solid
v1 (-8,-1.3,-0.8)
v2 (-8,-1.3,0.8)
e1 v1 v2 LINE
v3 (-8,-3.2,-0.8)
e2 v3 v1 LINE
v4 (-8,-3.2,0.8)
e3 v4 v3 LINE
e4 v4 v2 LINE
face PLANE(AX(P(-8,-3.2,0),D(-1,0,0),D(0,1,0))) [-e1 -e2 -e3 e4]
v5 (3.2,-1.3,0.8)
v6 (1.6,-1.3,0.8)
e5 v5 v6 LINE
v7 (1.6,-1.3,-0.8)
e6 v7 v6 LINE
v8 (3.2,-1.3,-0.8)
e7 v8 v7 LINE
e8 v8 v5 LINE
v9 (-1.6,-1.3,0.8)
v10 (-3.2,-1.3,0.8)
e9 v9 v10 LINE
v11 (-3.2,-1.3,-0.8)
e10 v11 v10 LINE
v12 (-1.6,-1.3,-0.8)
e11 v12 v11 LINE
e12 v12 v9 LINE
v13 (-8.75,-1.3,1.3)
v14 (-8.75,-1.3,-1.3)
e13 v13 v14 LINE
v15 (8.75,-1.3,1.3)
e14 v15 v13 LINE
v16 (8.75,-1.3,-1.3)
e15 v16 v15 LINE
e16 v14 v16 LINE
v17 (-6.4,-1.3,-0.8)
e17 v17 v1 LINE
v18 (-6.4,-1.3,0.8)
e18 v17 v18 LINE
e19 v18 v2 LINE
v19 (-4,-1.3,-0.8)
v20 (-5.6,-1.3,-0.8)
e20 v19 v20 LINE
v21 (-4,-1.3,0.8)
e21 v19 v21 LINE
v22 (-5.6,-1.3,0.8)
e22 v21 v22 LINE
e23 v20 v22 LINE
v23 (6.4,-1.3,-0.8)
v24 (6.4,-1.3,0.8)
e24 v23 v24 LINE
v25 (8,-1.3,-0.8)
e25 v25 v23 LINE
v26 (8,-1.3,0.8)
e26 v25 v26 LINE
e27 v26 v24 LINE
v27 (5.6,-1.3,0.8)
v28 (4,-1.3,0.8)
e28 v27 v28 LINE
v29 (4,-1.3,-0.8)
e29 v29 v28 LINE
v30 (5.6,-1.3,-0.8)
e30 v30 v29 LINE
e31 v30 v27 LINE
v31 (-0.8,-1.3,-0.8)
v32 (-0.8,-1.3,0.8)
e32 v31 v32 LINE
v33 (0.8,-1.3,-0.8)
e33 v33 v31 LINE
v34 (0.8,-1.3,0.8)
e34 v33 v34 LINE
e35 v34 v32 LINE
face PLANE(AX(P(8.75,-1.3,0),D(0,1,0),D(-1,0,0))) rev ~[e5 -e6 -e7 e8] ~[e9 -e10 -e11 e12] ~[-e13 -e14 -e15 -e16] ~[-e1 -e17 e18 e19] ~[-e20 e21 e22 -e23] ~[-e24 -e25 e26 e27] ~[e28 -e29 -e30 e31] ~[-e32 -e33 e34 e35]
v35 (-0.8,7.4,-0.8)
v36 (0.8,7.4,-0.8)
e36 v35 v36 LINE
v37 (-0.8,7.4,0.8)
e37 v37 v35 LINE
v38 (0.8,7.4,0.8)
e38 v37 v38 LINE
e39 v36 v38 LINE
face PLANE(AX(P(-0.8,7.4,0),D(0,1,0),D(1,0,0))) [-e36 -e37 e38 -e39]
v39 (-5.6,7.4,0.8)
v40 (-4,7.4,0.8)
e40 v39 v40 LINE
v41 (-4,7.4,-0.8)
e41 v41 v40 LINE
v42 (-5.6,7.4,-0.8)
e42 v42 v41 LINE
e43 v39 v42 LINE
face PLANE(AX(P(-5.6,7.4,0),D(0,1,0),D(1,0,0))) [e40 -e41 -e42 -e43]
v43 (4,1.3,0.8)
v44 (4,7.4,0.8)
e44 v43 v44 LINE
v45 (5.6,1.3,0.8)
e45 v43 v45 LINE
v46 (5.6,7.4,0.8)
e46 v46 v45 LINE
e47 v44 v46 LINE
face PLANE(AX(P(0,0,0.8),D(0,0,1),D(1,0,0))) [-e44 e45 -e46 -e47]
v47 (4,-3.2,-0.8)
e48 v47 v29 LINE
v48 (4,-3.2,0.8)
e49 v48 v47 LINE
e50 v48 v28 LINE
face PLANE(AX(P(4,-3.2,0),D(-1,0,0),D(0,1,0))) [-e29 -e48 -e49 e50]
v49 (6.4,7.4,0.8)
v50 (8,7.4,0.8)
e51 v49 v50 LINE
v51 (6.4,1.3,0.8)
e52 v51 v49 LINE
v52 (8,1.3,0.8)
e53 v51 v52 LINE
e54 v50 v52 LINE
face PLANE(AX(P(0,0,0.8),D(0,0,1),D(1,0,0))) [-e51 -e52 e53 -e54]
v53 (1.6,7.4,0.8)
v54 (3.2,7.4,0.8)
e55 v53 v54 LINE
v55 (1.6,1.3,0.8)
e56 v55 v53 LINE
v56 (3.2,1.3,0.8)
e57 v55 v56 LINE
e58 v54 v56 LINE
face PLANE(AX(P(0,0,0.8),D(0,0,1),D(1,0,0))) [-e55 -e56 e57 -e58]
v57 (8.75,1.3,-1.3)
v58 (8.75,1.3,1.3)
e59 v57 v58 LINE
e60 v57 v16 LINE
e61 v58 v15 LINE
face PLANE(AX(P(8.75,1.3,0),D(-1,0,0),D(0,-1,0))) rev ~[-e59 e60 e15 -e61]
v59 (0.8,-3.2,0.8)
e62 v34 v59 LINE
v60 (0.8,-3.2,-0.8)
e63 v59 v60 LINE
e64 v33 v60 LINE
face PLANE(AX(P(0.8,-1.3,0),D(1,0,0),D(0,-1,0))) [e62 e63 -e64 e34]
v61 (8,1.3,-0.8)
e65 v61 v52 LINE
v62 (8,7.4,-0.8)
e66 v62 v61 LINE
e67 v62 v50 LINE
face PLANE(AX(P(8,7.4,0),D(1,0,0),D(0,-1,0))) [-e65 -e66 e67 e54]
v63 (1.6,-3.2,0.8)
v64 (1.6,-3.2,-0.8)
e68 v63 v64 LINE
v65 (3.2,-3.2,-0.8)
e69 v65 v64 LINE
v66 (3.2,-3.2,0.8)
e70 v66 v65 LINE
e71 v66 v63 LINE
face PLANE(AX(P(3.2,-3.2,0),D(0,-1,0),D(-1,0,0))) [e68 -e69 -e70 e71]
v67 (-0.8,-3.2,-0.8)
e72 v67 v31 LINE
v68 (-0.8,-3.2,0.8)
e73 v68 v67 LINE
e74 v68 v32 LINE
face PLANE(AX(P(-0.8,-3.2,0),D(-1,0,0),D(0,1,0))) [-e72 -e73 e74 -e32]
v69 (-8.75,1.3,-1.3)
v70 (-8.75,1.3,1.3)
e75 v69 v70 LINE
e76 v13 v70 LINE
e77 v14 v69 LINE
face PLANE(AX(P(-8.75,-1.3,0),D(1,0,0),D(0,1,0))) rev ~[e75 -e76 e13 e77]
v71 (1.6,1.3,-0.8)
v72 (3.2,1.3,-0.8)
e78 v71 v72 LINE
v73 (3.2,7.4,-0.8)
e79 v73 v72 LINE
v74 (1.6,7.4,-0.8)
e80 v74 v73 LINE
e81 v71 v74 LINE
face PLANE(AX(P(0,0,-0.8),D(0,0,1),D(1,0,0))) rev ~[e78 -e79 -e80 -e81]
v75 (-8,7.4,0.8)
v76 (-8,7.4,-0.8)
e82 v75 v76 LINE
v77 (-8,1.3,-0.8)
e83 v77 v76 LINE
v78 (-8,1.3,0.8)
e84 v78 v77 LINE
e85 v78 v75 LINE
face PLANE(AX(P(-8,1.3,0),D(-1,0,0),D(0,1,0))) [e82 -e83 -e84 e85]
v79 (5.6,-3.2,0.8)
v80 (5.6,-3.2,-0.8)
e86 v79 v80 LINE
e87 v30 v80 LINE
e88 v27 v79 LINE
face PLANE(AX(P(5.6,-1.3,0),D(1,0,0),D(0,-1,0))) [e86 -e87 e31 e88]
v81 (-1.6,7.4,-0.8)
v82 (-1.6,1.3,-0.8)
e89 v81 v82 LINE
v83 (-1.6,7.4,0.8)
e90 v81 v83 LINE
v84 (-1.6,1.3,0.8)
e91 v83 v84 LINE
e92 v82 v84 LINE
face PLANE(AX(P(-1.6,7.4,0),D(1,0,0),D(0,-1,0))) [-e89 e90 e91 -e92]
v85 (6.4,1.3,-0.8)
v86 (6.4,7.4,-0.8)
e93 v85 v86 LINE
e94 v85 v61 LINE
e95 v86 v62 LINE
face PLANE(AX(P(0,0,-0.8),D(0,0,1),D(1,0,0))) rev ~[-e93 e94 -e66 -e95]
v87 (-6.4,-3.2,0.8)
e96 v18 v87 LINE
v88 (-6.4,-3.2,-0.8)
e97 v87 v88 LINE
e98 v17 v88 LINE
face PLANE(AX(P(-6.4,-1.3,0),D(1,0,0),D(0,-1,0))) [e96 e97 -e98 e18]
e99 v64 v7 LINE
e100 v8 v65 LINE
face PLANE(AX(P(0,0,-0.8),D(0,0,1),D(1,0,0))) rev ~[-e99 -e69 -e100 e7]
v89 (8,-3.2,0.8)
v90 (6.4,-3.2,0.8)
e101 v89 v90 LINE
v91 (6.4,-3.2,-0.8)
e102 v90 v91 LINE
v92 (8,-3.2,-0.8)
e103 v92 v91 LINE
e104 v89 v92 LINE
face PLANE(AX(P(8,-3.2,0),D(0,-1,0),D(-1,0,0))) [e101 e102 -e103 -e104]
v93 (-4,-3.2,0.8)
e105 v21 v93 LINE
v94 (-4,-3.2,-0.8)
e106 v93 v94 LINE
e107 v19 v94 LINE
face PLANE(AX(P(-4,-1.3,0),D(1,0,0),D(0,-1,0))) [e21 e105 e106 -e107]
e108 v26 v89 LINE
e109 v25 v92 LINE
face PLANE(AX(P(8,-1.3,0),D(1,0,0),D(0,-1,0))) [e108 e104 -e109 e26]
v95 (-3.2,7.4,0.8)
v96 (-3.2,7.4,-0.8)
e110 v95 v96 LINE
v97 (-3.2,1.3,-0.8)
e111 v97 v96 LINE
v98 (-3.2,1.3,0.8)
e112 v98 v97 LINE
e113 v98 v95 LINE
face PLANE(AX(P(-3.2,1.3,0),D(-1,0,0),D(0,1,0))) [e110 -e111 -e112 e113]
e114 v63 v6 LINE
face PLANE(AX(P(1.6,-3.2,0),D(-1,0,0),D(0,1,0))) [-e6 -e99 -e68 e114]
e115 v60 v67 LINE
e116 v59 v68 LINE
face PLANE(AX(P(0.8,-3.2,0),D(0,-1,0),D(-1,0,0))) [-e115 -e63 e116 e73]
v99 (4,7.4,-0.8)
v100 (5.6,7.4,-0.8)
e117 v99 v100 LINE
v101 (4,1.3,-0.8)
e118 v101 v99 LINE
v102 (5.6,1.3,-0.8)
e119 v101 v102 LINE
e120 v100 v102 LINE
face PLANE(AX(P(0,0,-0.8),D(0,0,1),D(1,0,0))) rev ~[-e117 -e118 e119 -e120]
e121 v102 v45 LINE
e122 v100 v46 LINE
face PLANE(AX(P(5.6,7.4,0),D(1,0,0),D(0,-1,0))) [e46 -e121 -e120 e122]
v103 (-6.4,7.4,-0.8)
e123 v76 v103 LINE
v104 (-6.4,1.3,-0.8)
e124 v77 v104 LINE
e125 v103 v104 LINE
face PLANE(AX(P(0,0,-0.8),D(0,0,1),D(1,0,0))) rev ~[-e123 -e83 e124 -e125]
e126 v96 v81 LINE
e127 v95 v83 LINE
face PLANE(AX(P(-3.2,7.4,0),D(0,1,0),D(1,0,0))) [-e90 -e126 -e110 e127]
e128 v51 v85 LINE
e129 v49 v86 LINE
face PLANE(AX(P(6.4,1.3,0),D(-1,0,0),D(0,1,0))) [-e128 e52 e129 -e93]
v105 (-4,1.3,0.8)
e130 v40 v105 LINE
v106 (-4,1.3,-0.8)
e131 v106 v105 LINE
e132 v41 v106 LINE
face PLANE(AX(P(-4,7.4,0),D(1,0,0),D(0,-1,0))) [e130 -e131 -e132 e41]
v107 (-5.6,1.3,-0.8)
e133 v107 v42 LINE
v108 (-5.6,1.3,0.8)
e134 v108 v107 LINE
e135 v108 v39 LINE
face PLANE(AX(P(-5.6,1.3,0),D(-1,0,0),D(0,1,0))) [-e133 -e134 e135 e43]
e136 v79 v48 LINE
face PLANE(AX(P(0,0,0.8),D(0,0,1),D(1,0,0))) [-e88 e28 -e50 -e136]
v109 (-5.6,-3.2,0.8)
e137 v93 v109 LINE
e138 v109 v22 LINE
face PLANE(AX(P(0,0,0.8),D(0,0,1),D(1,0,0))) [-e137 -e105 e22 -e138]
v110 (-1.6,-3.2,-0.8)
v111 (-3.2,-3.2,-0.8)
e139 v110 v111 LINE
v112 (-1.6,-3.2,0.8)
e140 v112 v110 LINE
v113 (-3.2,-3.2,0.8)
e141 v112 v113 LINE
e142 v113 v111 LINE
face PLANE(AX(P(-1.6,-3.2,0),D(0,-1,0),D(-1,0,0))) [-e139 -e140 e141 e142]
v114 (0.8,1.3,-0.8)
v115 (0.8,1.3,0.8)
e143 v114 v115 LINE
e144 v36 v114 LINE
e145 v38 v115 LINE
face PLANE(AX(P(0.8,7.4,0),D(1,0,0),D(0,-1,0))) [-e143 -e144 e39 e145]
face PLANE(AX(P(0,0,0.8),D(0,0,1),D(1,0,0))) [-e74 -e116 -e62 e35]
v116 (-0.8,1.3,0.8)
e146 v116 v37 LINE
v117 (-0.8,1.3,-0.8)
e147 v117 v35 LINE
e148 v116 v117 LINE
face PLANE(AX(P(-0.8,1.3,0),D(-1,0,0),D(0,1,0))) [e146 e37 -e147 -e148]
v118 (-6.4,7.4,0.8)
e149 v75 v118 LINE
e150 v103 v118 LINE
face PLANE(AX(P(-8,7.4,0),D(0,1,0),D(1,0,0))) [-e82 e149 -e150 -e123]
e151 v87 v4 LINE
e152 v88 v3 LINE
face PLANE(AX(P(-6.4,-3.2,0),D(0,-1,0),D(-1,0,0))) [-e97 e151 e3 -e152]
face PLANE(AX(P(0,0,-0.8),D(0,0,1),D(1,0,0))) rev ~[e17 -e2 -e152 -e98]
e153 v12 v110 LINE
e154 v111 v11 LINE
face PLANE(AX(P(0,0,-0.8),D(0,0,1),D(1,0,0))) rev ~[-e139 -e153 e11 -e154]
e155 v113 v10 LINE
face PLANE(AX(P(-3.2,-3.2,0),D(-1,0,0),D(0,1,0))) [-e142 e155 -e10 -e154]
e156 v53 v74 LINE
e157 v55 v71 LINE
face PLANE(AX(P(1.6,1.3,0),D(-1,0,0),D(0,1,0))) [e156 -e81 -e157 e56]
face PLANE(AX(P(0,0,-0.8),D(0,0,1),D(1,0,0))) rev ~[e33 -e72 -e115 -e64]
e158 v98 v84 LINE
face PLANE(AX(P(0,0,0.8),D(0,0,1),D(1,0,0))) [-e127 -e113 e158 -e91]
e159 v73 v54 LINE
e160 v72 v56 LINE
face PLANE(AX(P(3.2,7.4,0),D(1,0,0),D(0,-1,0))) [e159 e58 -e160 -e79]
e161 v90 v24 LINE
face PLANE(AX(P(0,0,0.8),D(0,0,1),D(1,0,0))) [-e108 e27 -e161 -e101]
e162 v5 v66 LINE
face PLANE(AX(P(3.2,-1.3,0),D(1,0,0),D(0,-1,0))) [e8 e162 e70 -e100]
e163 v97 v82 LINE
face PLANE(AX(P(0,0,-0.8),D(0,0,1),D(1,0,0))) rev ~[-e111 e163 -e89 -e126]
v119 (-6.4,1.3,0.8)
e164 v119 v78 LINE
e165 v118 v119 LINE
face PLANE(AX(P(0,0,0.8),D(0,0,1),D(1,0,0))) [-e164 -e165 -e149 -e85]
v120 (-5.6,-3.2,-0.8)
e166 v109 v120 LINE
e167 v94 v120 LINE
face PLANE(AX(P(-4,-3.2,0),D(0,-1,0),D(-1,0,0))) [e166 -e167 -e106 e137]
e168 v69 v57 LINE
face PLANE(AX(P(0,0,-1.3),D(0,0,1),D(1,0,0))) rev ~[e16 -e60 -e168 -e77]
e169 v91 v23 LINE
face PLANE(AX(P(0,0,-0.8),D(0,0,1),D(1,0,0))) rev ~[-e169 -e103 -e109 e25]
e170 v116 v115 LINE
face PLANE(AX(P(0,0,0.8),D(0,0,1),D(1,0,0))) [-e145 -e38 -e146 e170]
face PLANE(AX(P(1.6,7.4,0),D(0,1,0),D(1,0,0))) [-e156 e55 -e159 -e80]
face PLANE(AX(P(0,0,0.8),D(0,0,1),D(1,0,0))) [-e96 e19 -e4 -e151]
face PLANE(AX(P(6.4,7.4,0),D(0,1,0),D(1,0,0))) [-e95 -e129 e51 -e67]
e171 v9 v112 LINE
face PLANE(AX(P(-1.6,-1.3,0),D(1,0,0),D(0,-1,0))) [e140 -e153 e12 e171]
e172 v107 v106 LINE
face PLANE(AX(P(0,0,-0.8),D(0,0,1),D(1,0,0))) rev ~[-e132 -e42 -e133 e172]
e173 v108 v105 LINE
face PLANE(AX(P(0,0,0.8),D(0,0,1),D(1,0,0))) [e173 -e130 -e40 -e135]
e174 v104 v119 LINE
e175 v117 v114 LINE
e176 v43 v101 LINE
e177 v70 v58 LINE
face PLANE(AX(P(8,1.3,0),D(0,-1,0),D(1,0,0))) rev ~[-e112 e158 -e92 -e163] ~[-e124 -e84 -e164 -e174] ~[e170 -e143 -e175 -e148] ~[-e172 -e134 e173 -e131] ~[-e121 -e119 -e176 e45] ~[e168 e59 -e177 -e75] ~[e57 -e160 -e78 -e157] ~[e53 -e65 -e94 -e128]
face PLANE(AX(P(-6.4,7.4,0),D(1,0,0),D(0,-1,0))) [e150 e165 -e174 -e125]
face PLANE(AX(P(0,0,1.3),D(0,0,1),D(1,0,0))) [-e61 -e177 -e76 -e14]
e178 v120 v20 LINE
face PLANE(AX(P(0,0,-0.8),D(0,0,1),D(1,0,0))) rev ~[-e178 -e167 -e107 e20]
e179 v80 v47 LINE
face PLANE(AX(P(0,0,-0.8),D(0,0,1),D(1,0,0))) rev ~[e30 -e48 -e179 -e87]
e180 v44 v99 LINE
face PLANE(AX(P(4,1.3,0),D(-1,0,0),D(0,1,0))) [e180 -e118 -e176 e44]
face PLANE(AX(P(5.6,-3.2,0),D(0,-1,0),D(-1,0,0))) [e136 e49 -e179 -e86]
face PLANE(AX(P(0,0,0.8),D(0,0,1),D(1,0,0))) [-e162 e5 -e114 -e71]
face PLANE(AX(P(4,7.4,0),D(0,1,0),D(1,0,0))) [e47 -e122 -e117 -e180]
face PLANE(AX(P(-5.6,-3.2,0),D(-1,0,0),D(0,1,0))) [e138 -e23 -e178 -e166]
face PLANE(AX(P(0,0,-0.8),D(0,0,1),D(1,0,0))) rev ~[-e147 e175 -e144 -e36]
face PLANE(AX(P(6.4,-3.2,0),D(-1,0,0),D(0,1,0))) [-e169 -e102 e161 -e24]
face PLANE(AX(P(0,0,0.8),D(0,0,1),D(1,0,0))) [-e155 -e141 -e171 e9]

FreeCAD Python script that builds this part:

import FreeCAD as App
import Part
import Sketcher
from FreeCAD import Vector


def add_polygon(sketch, points):
    """Adds a closed chain of lines whose ends are joined by coincident constraints."""
    first, n = sketch.GeometryCount, len(points)
    for a, b in zip(points, points[1:] + points[:1]):
        sketch.addGeometry(Part.LineSegment(App.Vector(*a, 0), App.Vector(*b, 0)), False)
    for i in range(n):
        sketch.addConstraint(Sketcher.Constraint("Coincident", first + i, 2, first + (i + 1) % n, 1))

doc = App.newDocument("Part")
params = doc.addObject("Spreadsheet::Sheet", "Params")
for row, (alias, value) in enumerate([
    ("sketch1_width", "17.5 mm"),
    ("sketch1_height", "2.6 mm"),
    ("pad1_length", "2.6 mm"),
    ("sketch2_width", "1.6 mm"),
    ("pad2_length", "1.6 mm"),
], start=1):
    params.set(f"A{row}", alias)
    params.set(f"B{row}", "=" + value)
    params.setAlias(f"B{row}", alias)

body = doc.addObject("PartDesign::Body", "Body")

sketch1 = doc.addObject("Sketcher::SketchObject", "Sketch")
body.addObject(sketch1)
sketch1.AttachmentSupport = (doc.XY_Plane, [""])
sketch1.MapMode = "FlatFace"
add_polygon(sketch1, [(-8.8, -1.3), (8.8, -1.3), (8.8, 1.3), (-8.8, 1.3)])
sketch1.addConstraint([
    Sketcher.Constraint("Horizontal", 0),
    Sketcher.Constraint("Vertical", 1),
    Sketcher.Constraint("Horizontal", 2),
    Sketcher.Constraint("Vertical", 3),
    Sketcher.Constraint("Symmetric", 0, 2, 2, 2, -1, 1),
    Sketcher.Constraint("DistanceX", 0, 1, 0, 2, 17.5),
    Sketcher.Constraint("DistanceY", 1, 1, 1, 2, 2.6),
])
sketch1.setExpression("Constraints[9]", "Params.sketch1_width")
sketch1.setExpression("Constraints[10]", "Params.sketch1_height")
pad1 = doc.addObject("PartDesign::Pad", "Pad")
body.addObject(pad1)
pad1.Profile = sketch1
pad1.setExpression("Length", "Params.pad1_length")
pad1.Midplane = True

sketch2 = doc.addObject("Sketcher::SketchObject", "Sketch001")
body.addObject(sketch2)
sketch2.AttachmentSupport = (doc.XY_Plane, [""])
sketch2.MapMode = "FlatFace"
add_polygon(sketch2, [(8, -3.2), (8, -1.3), (6.4, -1.3), (6.4, -3.2)])
add_polygon(sketch2, [(6.4, 1.3), (8, 1.3), (8, 7.4), (6.4, 7.4)])
add_polygon(sketch2, [(5.6, -3.2), (5.6, -1.3), (4, -1.3), (4, -3.2)])
add_polygon(sketch2, [(4, 1.3), (5.6, 1.3), (5.6, 7.4), (4, 7.4)])
add_polygon(sketch2, [(3.2, -3.2), (3.2, -1.3), (1.6, -1.3), (1.6, -3.2)])
add_polygon(sketch2, [(1.6, 1.3), (3.2, 1.3), (3.2, 7.4), (1.6, 7.4)])
add_polygon(sketch2, [(0.8, -3.2), (0.8, -1.3), (-0.8, -1.3), (-0.8, -3.2)])
add_polygon(sketch2, [(-0.8, 1.3), (0.8, 1.3), (0.8, 7.4), (-0.8, 7.4)])
add_polygon(sketch2, [(-1.6, -3.2), (-1.6, -1.3), (-3.2, -1.3), (-3.2, -3.2)])
add_polygon(sketch2, [(-3.2, 1.3), (-1.6, 1.3), (-1.6, 7.4), (-3.2, 7.4)])
add_polygon(sketch2, [(-4, -3.2), (-4, -1.3), (-5.6, -1.3), (-5.6, -3.2)])
add_polygon(sketch2, [(-5.6, 1.3), (-4, 1.3), (-4, 7.4), (-5.6, 7.4)])
add_polygon(sketch2, [(-6.4, -3.2), (-6.4, -1.3), (-8, -1.3), (-8, -3.2)])
add_polygon(sketch2, [(-8, 1.3), (-6.4, 1.3), (-6.4, 7.4), (-8, 7.4)])
sketch2.addConstraint([
    Sketcher.Constraint("Vertical", 0),
    Sketcher.Constraint("Horizontal", 1),
    Sketcher.Constraint("Vertical", 2),
    Sketcher.Constraint("Horizontal", 3),
    Sketcher.Constraint("Horizontal", 4),
    Sketcher.Constraint("Vertical", 5),
    Sketcher.Constraint("Horizontal", 6),
    Sketcher.Constraint("Vertical", 7),
    Sketcher.Constraint("Vertical", 8),
    Sketcher.Constraint("Horizontal", 9),
    Sketcher.Constraint("Vertical", 10),
    Sketcher.Constraint("Horizontal", 11),
    Sketcher.Constraint("Horizontal", 12),
    Sketcher.Constraint("Vertical", 13),
    Sketcher.Constraint("Horizontal", 14),
    Sketcher.Constraint("Vertical", 15),
    Sketcher.Constraint("Vertical", 16),
    Sketcher.Constraint("Horizontal", 17),
    Sketcher.Constraint("Vertical", 18),
    Sketcher.Constraint("Horizontal", 19),
    Sketcher.Constraint("Horizontal", 20),
    Sketcher.Constraint("Vertical", 21),
    Sketcher.Constraint("Horizontal", 22),
    Sketcher.Constraint("Vertical", 23),
    Sketcher.Constraint("Vertical", 24),
    Sketcher.Constraint("Horizontal", 25),
    Sketcher.Constraint("Vertical", 26),
    Sketcher.Constraint("Horizontal", 27),
    Sketcher.Constraint("Horizontal", 28),
    Sketcher.Constraint("Vertical", 29),
    Sketcher.Constraint("Horizontal", 30),
    Sketcher.Constraint("Vertical", 31),
    Sketcher.Constraint("Vertical", 32),
    Sketcher.Constraint("Horizontal", 33),
    Sketcher.Constraint("Vertical", 34),
    Sketcher.Constraint("Horizontal", 35),
    Sketcher.Constraint("Horizontal", 36),
    Sketcher.Constraint("Vertical", 37),
    Sketcher.Constraint("Horizontal", 38),
    Sketcher.Constraint("Vertical", 39),
    Sketcher.Constraint("Vertical", 40),
    Sketcher.Constraint("Horizontal", 41),
    Sketcher.Constraint("Vertical", 42),
    Sketcher.Constraint("Horizontal", 43),
    Sketcher.Constraint("Horizontal", 44),
    Sketcher.Constraint("Vertical", 45),
    Sketcher.Constraint("Horizontal", 46),
    Sketcher.Constraint("Vertical", 47),
    Sketcher.Constraint("Vertical", 48),
    Sketcher.Constraint("Horizontal", 49),
    Sketcher.Constraint("Vertical", 50),
    Sketcher.Constraint("Horizontal", 51),
    Sketcher.Constraint("Horizontal", 52),
    Sketcher.Constraint("Vertical", 53),
    Sketcher.Constraint("Horizontal", 54),
    Sketcher.Constraint("Vertical", 55),
    Sketcher.Constraint("Symmetric", 25, 2, 28, 2, -1, 1),
    Sketcher.Constraint("Symmetric", 23, 2, 32, 2, -1, 1),
    Sketcher.Constraint("Symmetric", 17, 2, 36, 2, -1, 1),
    Sketcher.Constraint("Symmetric", 15, 2, 40, 2, -1, 1),
    Sketcher.Constraint("Symmetric", 9, 2, 44, 2, -1, 1),
    Sketcher.Constraint("Symmetric", 7, 2, 48, 2, -1, 1),
    Sketcher.Constraint("Symmetric", 1, 2, 52, 2, -1, 1),
    Sketcher.Constraint("Symmetric", 17, 2, 32, 2, -2),
    Sketcher.Constraint("Symmetric", 19, 2, 34, 2, -2),
    Sketcher.Constraint("Symmetric", 21, 2, 38, 2, -2),
    Sketcher.Constraint("Symmetric", 9, 2, 40, 2, -2),
    Sketcher.Constraint("Symmetric", 11, 2, 42, 2, -2),
    Sketcher.Constraint("Symmetric", 13, 2, 46, 2, -2),
    Sketcher.Constraint("Symmetric", 1, 2, 48, 2, -2),
    Sketcher.Constraint("Symmetric", 3, 2, 50, 2, -2),
    Sketcher.Constraint("Symmetric", 5, 2, 54, 2, -2),
    Sketcher.Constraint("Horizontal", 1, 2, 8, 2),
    Sketcher.Constraint("Horizontal", 3, 2, 10, 2),
    Sketcher.Constraint("Horizontal", 6, 2, 13, 2),
    Sketcher.Constraint("Horizontal", 9, 2, 16, 2),
    Sketcher.Constraint("Horizontal", 11, 2, 18, 2),
    Sketcher.Constraint("Horizontal", 14, 2, 21, 2),
    Sketcher.Constraint("Horizontal", 17, 2, 24, 2),
    Sketcher.Constraint("Horizontal", 19, 2, 26, 2),
    Sketcher.Constraint("Horizontal", 22, 2, 29, 2),
    Sketcher.Constraint("Vertical", 3, 2, 4, 2),
    Sketcher.Constraint("Vertical", 11, 2, 12, 2),
    Sketcher.Constraint("Vertical", 19, 2, 20, 2),
    Sketcher.Constraint("Vertical", 27, 2, 28, 2),
    Sketcher.Constraint("Vertical", 26, 2, 30, 2),
    Sketcher.Constraint("Equal", 6, 9),
    Sketcher.Constraint("Equal", 14, 17),
    Sketcher.Constraint("Equal", 22, 25),
    Sketcher.Constraint("DistanceX", 1, 2, 1, 1, 1.6),
    Sketcher.Constraint("DistanceX", -1, 1, 17, 2, 1.6),
    Sketcher.Constraint("DistanceY", 0, 2, 4, 2, 2.6),
    Sketcher.Constraint("DistanceY", 3, 2, 4, 2, 4.5),
    Sketcher.Constraint("DistanceY", 0, 2, 5, 2, 8.7),
    Sketcher.Constraint("DistanceX", 8, 2, 0, 2, 2.4),
    Sketcher.Constraint("DistanceX", 16, 2, 8, 2, 2.4),
])
sketch2.setExpression("Constraints[145]", "Params.sketch2_width")
pad2 = doc.addObject("PartDesign::Pad", "Pad001")
body.addObject(pad2)
pad2.Profile = sketch2
pad2.setExpression("Length", "Params.pad2_length")
pad2.Midplane = True

doc.recompute()
